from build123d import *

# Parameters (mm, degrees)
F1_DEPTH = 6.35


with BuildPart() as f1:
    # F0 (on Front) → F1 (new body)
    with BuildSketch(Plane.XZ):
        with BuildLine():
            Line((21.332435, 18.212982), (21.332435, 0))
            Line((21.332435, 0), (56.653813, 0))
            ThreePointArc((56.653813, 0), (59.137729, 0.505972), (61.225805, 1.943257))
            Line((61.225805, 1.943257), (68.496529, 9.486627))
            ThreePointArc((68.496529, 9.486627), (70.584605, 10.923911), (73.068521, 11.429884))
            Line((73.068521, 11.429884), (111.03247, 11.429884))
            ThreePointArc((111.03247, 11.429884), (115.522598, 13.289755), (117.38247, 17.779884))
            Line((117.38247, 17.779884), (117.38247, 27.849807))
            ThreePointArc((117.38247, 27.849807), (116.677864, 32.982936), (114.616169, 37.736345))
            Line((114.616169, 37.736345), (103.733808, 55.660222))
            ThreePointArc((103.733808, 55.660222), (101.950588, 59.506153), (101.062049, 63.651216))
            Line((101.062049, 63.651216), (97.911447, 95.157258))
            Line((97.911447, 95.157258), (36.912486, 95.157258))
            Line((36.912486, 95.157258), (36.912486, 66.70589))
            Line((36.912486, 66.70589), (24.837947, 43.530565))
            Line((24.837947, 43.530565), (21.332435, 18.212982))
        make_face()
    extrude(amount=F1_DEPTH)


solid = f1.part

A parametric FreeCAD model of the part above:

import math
import FreeCAD as App
import Part
import Sketcher
Q = App.Units.Quantity

doc = App.newDocument("Part")
params = doc.addObject("Spreadsheet::Sheet", "Params")
for row, (alias, value) in enumerate([
    ("sketch1_radius", "0.2499998 in"),
    ("sketch1_radius2", "0.2499999 in"),
    ("sketch1_radius3", "0.75 in"),
    ("pad1_length", "0.25 in"),
], start=1):
    params.set(f"A{row}", alias)
    params.set(f"B{row}", "=" + value)
    params.setAlias(f"B{row}", alias)

body = doc.addObject("PartDesign::Body", "Body")

sketch1 = body.newObject("Sketcher::SketchObject", "Sketch")
sketch1.AttachmentSupport = (doc.getObject("XZ_Plane"), [""])
sketch1.MapMode = "FlatFace"
sketch1.addGeometry(Part.LineSegment(App.Vector(21.3, 18.2, 0), App.Vector(21.3, 0, 0)), False)
sketch1.addGeometry(Part.LineSegment(App.Vector(21.3, 0, 0), App.Vector(56.7, 0, 0)), False)
sketch1.addGeometry(Part.ArcOfCircle(Part.Circle(App.Vector(56.7, 6.3, 0), App.Vector(0, 0, 1), 6.3), math.radians(-90), math.radians(-44)), False)
sketch1.addGeometry(Part.LineSegment(App.Vector(61.2, 1.9, 0), App.Vector(68.5, 9.5, 0)), False)
sketch1.addGeometry(Part.ArcOfCircle(Part.Circle(App.Vector(73.1, 5.1, 0), App.Vector(0, 0, 1), 6.4), math.radians(90), math.radians(136)), False)
sketch1.addGeometry(Part.LineSegment(App.Vector(73.1, 11.4, 0), App.Vector(111, 11.4, 0)), False)
sketch1.addGeometry(Part.ArcOfCircle(Part.Circle(App.Vector(111, 17.8, 0), App.Vector(0, 0, 1), 6.3), math.radians(-90), math.radians(0)), False)
sketch1.addGeometry(Part.LineSegment(App.Vector(117.4, 17.8, 0), App.Vector(117.4, 27.8, 0)), False)
sketch1.addGeometry(Part.ArcOfCircle(Part.Circle(App.Vector(98.3, 27.8, 0), App.Vector(0, 0, 1), 19), math.radians(0), math.radians(31)), False)
sketch1.addGeometry(Part.LineSegment(App.Vector(114.6, 37.7, 0), App.Vector(103.7, 55.7, 0)), False)
sketch1.addGeometry(Part.ArcOfCircle(Part.Circle(App.Vector(120, 65.5, 0), App.Vector(0, 0, 1), 19), math.radians(-174), math.radians(-149)), False)
sketch1.addGeometry(Part.LineSegment(App.Vector(101.1, 63.7, 0), App.Vector(97.9, 95.2, 0)), False)
sketch1.addGeometry(Part.LineSegment(App.Vector(97.9, 95.2, 0), App.Vector(36.9, 95.2, 0)), False)
sketch1.addGeometry(Part.LineSegment(App.Vector(36.9, 95.2, 0), App.Vector(36.9, 66.7, 0)), False)
sketch1.addGeometry(Part.LineSegment(App.Vector(36.9, 66.7, 0), App.Vector(24.8, 43.5, 0)), False)
sketch1.addGeometry(Part.LineSegment(App.Vector(24.8, 43.5, 0), App.Vector(21.3, 18.2, 0)), False)
sketch1.addConstraint(Sketcher.Constraint("Coincident", 0, 2, 1, 1))
sketch1.addConstraint(Sketcher.Constraint("Tangent", 1, 2, 2, 1))
sketch1.addConstraint(Sketcher.Constraint("Tangent", 2, 2, 3, 1))
sketch1.addConstraint(Sketcher.Constraint("Tangent", 3, 2, 4, 2))
sketch1.addConstraint(Sketcher.Constraint("Tangent", 4, 1, 5, 1))
sketch1.addConstraint(Sketcher.Constraint("Tangent", 5, 2, 6, 1))
sketch1.addConstraint(Sketcher.Constraint("Tangent", 6, 2, 7, 1))
sketch1.addConstraint(Sketcher.Constraint("Tangent", 7, 2, 8, 1))
sketch1.addConstraint(Sketcher.Constraint("Tangent", 8, 2, 9, 1))
sketch1.addConstraint(Sketcher.Constraint("Tangent", 9, 2, 10, 2))
sketch1.addConstraint(Sketcher.Constraint("Tangent", 10, 1, 11, 1))
sketch1.addConstraint(Sketcher.Constraint("Coincident", 11, 2, 12, 1))
sketch1.addConstraint(Sketcher.Constraint("Coincident", 12, 2, 13, 1))
sketch1.addConstraint(Sketcher.Constraint("Coincident", 13, 2, 14, 1))
sketch1.addConstraint(Sketcher.Constraint("Coincident", 14, 2, 15, 1))
sketch1.addConstraint(Sketcher.Constraint("Coincident", 15, 2, 0, 1))
sketch1.addConstraint(Sketcher.Constraint("Vertical", 0))
sketch1.addConstraint(Sketcher.Constraint("Horizontal", 1))
sketch1.addConstraint(Sketcher.Constraint("Horizontal", 5))
sketch1.addConstraint(Sketcher.Constraint("Vertical", 7))
sketch1.addConstraint(Sketcher.Constraint("Horizontal", 12))
sketch1.addConstraint(Sketcher.Constraint("Vertical", 13))
sketch1.addConstraint(Sketcher.Constraint("PointOnObject", 0, 2, -1))
sketch1.addConstraint(Sketcher.Constraint("Radius", 2, Q("0.2499998 in")))
sketch1.addConstraint(Sketcher.Constraint("Radius", 6, Q("0.2499999 in")))
sketch1.addConstraint(Sketcher.Constraint("Radius", 8, Q("0.75 in")))
sketch1.addConstraint(Sketcher.Constraint("DistanceY", 4, 3, 6, 3, Q("0.5000002 in")))
sketch1.addConstraint(Sketcher.Constraint("DistanceX", 3, 2, 4, 3, Q("0.1799998 in")))
sketch1.addConstraint(Sketcher.Constraint("Radius", 10, Q("19.049985 mm")))
sketch1.addConstraint(Sketcher.Constraint("DistanceX", 5, 1, 5, 2, Q("37.963949 mm")))
sketch1.addConstraint(Sketcher.Constraint("DistanceX", 12, 2, 12, 1, Q("60.998961 mm")))
sketch1.addConstraint(Sketcher.Constraint("DistanceY", 0, 2, 0, 1, Q("18.212982 mm")))
sketch1.addConstraint(Sketcher.Constraint("DistanceY", 13, 2, 13, 1, Q("28.451368 mm")))
sketch1.addConstraint(Sketcher.Constraint("DistanceX", 8, 2, 7, 2, Q("2.766301 mm")))
sketch1.addConstraint(Sketcher.Constraint("DistanceX", 11, 2, 10, 1, Q("3.150602 mm")))
sketch1.addConstraint(Sketcher.Constraint("Distance", 3, Q("10.47692 mm")))
sketch1.addConstraint(Sketcher.Constraint("Distance", 11, Q("31.66318 mm")))
sketch1.addConstraint(Sketcher.Constraint("Distance", 15, Q("25.55912 mm")))
sketch1.addConstraint(Sketcher.Constraint("DistanceX", 1, 1, 1, 2, Q("35.321378 mm")))
sketch1.addConstraint(Sketcher.Constraint("DistanceY", 7, 1, 7, 2, Q("10.069923 mm")))
sketch1.addConstraint(Sketcher.Constraint("DistanceX", -1, 1, 6, 3, Q("111.032471 mm")))
sketch1.addConstraint(Sketcher.Constraint("DistanceY", -1, 1, 9, 2, Q("55.660222 mm")))
sketch1.addConstraint(Sketcher.Constraint("DistanceX", 14, 2, 13, 2, Q("12.074539 mm")))
sketch1.setExpression("Constraints[23]", "Params.sketch1_radius")
sketch1.setExpression("Constraints[24]", "Params.sketch1_radius2")
sketch1.setExpression("Constraints[25]", "Params.sketch1_radius3")
pad1 = body.newObject("PartDesign::Pad", "Pad")
pad1.Profile = sketch1
pad1.setExpression("Length", "Params.pad1_length")

doc.recompute()
